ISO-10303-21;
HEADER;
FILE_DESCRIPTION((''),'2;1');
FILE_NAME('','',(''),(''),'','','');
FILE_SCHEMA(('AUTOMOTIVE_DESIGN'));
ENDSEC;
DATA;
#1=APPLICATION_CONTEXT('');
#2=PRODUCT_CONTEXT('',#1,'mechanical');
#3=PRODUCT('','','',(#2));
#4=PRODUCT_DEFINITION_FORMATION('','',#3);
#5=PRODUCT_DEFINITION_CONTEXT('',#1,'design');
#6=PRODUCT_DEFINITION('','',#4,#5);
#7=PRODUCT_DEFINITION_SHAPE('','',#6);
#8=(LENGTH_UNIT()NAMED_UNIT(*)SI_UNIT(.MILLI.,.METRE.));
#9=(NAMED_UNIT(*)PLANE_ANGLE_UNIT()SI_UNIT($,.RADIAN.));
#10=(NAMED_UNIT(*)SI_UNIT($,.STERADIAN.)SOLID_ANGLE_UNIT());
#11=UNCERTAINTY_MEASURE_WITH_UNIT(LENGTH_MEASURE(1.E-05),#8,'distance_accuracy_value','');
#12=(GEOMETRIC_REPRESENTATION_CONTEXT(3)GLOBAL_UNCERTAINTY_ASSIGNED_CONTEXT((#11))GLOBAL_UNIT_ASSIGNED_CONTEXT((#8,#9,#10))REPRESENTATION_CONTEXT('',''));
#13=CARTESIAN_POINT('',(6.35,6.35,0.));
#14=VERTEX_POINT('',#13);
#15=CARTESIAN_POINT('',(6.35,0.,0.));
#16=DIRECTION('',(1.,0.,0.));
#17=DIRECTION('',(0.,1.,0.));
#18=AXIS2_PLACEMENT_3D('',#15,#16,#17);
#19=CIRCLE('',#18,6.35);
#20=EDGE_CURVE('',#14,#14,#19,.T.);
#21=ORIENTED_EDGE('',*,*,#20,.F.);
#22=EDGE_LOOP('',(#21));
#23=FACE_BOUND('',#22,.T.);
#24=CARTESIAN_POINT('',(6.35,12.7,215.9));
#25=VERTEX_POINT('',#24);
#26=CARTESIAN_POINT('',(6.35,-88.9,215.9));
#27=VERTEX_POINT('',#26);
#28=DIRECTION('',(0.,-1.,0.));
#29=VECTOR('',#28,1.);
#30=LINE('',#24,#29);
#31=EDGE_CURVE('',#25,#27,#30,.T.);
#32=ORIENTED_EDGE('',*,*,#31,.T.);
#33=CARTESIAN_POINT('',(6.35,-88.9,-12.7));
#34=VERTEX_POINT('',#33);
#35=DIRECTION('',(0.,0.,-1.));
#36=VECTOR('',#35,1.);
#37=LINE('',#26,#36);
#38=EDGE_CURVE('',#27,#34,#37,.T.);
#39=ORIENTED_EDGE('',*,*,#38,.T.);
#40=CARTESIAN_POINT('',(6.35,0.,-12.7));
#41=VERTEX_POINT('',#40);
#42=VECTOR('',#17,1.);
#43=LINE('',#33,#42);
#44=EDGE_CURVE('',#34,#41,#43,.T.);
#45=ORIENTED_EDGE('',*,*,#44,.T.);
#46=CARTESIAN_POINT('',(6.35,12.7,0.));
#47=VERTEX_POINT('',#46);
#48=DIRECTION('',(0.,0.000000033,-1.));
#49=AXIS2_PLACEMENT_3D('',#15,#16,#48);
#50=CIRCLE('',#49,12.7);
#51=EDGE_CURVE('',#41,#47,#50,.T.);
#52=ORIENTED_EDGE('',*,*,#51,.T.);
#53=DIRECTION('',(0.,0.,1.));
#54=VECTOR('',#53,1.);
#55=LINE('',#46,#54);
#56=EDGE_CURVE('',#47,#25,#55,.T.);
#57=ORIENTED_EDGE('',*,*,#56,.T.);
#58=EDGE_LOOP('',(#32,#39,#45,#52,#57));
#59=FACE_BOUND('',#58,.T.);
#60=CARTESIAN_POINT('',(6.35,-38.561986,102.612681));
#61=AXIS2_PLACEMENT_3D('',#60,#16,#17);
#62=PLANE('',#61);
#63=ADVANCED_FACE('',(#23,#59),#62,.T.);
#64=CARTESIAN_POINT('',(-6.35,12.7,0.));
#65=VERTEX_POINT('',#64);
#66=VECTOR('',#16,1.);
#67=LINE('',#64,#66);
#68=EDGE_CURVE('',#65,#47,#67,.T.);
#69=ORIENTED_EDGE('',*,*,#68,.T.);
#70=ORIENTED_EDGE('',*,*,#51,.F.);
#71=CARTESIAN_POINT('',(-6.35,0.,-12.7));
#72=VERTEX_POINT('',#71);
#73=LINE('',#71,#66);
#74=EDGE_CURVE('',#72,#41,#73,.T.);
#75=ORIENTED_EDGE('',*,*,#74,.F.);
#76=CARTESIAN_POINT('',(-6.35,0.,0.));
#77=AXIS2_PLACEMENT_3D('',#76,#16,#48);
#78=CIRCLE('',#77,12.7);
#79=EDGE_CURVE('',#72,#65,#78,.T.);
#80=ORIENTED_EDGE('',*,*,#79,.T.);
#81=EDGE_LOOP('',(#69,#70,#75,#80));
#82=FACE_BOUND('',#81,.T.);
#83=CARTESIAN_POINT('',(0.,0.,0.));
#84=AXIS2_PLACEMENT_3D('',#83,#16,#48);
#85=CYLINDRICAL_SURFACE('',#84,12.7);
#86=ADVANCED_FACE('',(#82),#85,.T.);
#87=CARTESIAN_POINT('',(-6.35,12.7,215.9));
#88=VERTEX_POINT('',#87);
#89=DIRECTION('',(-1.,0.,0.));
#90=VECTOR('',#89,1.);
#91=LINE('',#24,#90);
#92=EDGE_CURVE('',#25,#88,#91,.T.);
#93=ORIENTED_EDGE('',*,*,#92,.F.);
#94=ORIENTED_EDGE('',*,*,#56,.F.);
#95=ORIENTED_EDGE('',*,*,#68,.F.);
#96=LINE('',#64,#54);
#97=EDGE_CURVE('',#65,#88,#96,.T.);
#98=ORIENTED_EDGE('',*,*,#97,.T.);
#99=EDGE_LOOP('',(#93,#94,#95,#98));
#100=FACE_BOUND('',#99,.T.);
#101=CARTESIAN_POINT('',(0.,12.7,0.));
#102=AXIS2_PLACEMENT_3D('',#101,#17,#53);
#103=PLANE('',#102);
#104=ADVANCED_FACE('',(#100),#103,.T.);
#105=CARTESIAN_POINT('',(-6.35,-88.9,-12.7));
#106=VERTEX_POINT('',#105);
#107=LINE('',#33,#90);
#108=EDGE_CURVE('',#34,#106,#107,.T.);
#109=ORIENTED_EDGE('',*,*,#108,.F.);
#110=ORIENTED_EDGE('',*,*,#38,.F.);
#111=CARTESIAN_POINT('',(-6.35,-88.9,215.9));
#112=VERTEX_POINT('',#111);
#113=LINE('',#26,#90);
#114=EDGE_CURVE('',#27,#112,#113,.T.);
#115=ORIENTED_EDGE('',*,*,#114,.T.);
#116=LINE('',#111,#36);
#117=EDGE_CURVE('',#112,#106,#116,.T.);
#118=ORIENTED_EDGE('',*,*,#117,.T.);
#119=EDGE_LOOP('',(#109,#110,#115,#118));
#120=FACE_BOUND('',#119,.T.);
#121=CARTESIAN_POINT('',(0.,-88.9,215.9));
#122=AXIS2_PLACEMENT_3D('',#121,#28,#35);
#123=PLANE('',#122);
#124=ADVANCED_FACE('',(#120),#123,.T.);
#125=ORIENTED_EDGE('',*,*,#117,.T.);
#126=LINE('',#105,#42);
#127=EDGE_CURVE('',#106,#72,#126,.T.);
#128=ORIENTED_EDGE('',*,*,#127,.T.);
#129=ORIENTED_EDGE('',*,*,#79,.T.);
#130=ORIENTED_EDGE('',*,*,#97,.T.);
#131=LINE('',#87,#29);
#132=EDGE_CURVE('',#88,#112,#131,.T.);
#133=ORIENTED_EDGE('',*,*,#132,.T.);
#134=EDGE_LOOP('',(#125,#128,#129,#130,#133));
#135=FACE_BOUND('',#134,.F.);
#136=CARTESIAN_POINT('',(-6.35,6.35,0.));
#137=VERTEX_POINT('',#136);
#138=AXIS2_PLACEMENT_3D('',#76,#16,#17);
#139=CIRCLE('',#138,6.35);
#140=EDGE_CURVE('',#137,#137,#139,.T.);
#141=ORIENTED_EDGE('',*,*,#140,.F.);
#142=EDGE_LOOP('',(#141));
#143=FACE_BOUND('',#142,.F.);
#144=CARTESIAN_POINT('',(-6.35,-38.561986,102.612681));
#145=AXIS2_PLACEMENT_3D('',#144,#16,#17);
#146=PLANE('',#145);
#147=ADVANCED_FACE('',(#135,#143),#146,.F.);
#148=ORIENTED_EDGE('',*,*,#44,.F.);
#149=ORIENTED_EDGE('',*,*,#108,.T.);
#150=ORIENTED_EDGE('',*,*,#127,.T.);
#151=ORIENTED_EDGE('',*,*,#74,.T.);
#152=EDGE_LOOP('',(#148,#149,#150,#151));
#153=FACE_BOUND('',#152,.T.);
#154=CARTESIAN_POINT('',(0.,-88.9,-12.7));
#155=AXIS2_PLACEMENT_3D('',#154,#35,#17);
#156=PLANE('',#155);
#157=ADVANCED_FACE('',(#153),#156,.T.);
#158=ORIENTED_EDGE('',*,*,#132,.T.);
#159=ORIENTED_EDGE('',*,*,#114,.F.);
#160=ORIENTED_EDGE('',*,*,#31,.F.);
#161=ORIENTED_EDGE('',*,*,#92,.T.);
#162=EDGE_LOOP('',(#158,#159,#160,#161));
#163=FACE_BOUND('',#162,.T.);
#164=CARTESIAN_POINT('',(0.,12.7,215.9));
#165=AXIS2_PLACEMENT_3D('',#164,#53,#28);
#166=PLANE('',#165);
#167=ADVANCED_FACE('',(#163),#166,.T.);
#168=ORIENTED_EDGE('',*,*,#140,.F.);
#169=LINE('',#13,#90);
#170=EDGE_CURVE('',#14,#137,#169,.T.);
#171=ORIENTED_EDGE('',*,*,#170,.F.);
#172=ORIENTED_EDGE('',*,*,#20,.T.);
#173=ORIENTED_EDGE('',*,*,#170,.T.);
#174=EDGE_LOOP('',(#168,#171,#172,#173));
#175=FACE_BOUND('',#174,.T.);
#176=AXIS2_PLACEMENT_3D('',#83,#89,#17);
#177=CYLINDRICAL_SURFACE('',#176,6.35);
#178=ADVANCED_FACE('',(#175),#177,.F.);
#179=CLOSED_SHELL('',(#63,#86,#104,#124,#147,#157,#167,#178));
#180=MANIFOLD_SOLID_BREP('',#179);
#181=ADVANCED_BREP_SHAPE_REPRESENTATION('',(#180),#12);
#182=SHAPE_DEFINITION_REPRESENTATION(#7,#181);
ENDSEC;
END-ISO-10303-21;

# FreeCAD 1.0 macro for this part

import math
import FreeCAD as App
import Part
import Sketcher

V = App.Vector
Q = App.Units.Quantity

doc = App.newDocument("Part")
params = doc.addObject("Spreadsheet::Sheet", "Params")
for row, (alias, value) in enumerate([
    ("sketch1_diameter", "0.5 in"),
    ("sketch1_radius", "0.5 in"),
    ("sketch1_width", "4 in"),
    ("sketch1_height", "9 in"),
    ("pad1_length", "0.5 in"),
], start=1):
    params.set(f"A{row}", alias)
    params.set(f"B{row}", "=" + value)
    params.setAlias(f"B{row}", alias)

body = doc.addObject("PartDesign::Body", "Body")

# Sketch on YZ plane
sketch1 = doc.addObject("Sketcher::SketchObject", "Sketch")
body.addObject(sketch1)
sketch1.AttachmentSupport = (doc.YZ_Plane, [""])
sketch1.MapMode = "FlatFace"
sketch1.addGeometry([
    Part.LineSegment(V(-89, -13, 0), V(0, -13, 0)),  # 0
    Part.ArcOfCircle(Part.Circle(V(0, 0, 0), V(0, 0, 1), 13), math.radians(-90), math.radians(0)),  # 1
    Part.LineSegment(V(13, 0, 0), V(13, 216, 0)),  # 2
    Part.LineSegment(V(13, 216, 0), V(-89, 216, 0)),  # 3
    Part.LineSegment(V(-89, 216, 0), V(-89, -13, 0)),  # 4
    Part.Circle(V(0, 0, 0), V(0, 0, 1), 6),  # 5
], False)
sketch1.addConstraint([
    Sketcher.Constraint("Tangent", 0, 2, 1, 1),
    Sketcher.Constraint("Tangent", 1, 2, 2, 1),
    Sketcher.Constraint("Coincident", 2, 2, 3, 1),
    Sketcher.Constraint("Coincident", 3, 2, 4, 1),
    Sketcher.Constraint("Coincident", 4, 2, 0, 1),
    Sketcher.Constraint("Horizontal", 0),
    Sketcher.Constraint("Vertical", 2),
    Sketcher.Constraint("Horizontal", 3),
    Sketcher.Constraint("Vertical", 4),
    Sketcher.Constraint("Coincident", 1, 3, -1, 1),
    Sketcher.Constraint("Coincident", 5, 3, -1, 1),
    Sketcher.Constraint("Diameter", 5, Q("0.5 in")),
    Sketcher.Constraint("Radius", 1, Q("0.5 in")),
    Sketcher.Constraint("DistanceX", 3, 2, 3, 1, Q("4 in")),
    Sketcher.Constraint("DistanceY", 4, 2, 4, 1, Q("9 in")),
])
sketch1.setExpression("Constraints[11]", "Params.sketch1_diameter")
sketch1.setExpression("Constraints[12]", "Params.sketch1_radius")
sketch1.setExpression("Constraints[13]", "Params.sketch1_width")
sketch1.setExpression("Constraints[14]", "Params.sketch1_height")
pad1 = doc.addObject("PartDesign::Pad", "Pad")
body.addObject(pad1)
pad1.Profile = sketch1
pad1.setExpression("Length", "Params.pad1_length")
pad1.Midplane = True

doc.recompute()
